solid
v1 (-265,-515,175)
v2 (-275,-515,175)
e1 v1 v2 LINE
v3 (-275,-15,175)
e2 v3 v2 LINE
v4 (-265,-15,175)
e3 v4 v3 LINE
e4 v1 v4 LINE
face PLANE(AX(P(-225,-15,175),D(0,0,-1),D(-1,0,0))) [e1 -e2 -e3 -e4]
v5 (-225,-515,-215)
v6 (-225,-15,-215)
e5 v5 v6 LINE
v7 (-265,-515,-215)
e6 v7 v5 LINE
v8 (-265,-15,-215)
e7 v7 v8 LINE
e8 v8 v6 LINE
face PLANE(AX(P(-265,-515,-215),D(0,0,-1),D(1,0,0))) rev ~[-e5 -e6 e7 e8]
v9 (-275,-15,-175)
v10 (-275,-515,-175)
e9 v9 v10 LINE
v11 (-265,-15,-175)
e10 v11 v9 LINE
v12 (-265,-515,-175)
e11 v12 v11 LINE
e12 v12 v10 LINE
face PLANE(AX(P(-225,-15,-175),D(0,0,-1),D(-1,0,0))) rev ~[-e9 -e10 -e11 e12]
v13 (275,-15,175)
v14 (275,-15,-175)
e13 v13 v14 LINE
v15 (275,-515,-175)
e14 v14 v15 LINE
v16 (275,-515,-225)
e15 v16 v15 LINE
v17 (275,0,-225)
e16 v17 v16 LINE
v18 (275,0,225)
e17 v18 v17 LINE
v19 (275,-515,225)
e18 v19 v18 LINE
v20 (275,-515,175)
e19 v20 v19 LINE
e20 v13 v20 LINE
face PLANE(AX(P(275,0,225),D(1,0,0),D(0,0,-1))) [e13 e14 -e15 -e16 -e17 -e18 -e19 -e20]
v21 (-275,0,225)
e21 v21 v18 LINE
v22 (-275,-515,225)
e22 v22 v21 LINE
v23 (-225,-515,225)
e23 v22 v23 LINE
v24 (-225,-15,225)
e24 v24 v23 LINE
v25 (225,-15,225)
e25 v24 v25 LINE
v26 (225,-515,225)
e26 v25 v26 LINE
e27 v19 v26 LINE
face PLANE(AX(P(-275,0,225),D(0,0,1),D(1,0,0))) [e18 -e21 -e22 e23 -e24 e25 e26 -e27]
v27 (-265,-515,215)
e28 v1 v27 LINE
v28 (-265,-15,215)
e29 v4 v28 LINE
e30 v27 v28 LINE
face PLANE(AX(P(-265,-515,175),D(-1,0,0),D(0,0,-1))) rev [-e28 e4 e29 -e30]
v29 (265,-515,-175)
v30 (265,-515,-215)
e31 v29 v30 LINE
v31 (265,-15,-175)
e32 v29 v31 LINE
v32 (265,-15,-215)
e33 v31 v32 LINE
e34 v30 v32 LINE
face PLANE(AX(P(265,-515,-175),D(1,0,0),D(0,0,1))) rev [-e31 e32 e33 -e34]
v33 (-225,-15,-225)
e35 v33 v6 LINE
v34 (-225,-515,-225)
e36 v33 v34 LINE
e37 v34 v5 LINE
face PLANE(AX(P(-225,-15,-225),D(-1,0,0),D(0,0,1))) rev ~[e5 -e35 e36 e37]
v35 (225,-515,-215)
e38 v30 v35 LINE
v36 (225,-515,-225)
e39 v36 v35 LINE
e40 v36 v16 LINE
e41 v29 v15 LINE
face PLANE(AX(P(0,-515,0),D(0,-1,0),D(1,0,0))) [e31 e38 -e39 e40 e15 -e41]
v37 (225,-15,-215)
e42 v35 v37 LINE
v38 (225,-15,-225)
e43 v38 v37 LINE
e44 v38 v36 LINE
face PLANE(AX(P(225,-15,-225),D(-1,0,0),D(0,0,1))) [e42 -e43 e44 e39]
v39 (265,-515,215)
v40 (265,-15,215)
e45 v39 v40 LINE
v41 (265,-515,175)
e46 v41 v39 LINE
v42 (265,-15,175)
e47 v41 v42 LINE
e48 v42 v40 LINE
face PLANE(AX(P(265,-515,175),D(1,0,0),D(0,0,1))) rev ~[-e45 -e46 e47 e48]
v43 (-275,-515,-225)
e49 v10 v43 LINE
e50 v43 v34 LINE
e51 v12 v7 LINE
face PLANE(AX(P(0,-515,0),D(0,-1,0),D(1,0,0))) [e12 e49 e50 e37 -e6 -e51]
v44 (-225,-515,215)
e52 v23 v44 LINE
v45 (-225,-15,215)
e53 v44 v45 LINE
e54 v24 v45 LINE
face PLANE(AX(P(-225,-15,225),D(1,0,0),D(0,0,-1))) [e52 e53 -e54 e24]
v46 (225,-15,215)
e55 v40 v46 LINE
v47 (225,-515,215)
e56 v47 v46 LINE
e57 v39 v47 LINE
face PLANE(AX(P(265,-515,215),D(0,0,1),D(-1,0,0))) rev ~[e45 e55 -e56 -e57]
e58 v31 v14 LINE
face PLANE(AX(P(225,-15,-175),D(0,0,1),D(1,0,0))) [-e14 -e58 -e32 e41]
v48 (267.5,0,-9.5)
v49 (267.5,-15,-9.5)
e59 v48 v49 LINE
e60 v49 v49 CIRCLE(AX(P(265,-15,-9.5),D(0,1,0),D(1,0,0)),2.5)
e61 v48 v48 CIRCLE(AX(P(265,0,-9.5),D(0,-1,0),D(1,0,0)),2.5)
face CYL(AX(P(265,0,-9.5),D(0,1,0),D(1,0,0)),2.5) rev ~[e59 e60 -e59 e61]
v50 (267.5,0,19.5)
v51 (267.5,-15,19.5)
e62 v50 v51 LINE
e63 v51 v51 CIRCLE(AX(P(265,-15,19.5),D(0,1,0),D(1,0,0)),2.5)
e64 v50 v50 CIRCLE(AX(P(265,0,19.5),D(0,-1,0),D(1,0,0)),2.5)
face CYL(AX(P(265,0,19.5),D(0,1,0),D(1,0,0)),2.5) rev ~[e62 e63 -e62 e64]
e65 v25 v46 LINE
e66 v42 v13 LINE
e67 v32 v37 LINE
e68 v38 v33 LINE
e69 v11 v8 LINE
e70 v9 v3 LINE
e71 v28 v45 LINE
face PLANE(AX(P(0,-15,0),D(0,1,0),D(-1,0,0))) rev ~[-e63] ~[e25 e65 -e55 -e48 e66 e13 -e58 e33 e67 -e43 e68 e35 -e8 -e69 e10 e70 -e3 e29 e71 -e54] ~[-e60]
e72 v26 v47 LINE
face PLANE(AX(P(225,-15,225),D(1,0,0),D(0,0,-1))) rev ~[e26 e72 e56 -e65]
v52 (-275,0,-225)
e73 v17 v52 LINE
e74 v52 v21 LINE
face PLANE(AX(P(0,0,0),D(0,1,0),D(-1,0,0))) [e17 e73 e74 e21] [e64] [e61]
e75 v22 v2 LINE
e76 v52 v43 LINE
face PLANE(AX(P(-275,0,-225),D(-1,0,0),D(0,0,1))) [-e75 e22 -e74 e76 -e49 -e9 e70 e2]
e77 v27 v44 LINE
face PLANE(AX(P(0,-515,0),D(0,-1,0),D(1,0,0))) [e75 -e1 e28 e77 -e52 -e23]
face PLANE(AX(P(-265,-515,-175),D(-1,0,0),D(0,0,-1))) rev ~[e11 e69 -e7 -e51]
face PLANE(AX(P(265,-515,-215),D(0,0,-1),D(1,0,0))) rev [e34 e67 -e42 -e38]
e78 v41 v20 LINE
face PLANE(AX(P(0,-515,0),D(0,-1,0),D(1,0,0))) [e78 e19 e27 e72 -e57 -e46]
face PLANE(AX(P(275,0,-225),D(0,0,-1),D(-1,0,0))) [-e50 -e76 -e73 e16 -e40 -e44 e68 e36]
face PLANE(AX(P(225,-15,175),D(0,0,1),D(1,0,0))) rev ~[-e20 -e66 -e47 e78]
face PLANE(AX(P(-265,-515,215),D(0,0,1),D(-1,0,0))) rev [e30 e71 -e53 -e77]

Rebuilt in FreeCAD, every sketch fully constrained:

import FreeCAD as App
import Part
import Sketcher

V = App.Vector
Q = App.Units.Quantity


def add_polygon(sketch, points):
    """Adds a closed chain of lines whose ends are joined by coincident constraints."""
    first, n = sketch.GeometryCount, len(points)
    for a, b in zip(points, points[1:] + points[:1]):
        sketch.addGeometry(Part.LineSegment(App.Vector(*a, 0), App.Vector(*b, 0)), False)
    for i in range(n):
        sketch.addConstraint(Sketcher.Constraint("Coincident", first + i, 2, first + (i + 1) % n, 1))

doc = App.newDocument("Part")
body = doc.addObject("PartDesign::Body", "Body")

# Sketch on XZ plane
sketch1 = body.newObject("Sketcher::SketchObject", "Sketch")
sketch1.AttachmentSupport = (doc.getObject("XZ_Plane"), [""])
sketch1.MapMode = "FlatFace"
add_polygon(sketch1, [(-275, -225), (-275, 225), (275, 225), (275, -225)])  # lines 0-3
sketch1.addConstraint(Sketcher.Constraint("Vertical", 0))
sketch1.addConstraint(Sketcher.Constraint("Horizontal", 1))
sketch1.addConstraint(Sketcher.Constraint("Vertical", 2))
sketch1.addConstraint(Sketcher.Constraint("Horizontal", 3))
sketch1.addConstraint(Sketcher.Constraint("Symmetric", 0, 2, 2, 2, -1, 1))
sketch1.addConstraint(Sketcher.Constraint("DistanceX", 1, 1, 1, 2, Q("550 mm")))
sketch1.addConstraint(Sketcher.Constraint("DistanceY", 0, 1, 0, 2, Q("450 mm")))
pad1 = body.newObject("PartDesign::Pad", "Pad")
pad1.Profile = sketch1
pad1.Length = 15

# Sketch on XZ plane
sketch2 = body.newObject("Sketcher::SketchObject", "Sketch001")
sketch2.AttachmentSupport = (doc.getObject("XZ_Plane"), [""])
sketch2.MapMode = "FlatFace"
sketch2.AttachmentOffset = App.Placement(V(0, 0, 15), App.Rotation())
add_polygon(sketch2, [(225, -225), (275, -225), (275, -175), (225, -175)])  # lines 0-3
add_polygon(sketch2, [(-275, 225), (-275, 175), (-225, 175), (-225, 225)])  # lines 4-7
add_polygon(sketch2, [(-275, -225), (-225, -225), (-225, -175), (-275, -175)])  # lines 8-11
add_polygon(sketch2, [(225, 175), (275, 175), (275, 225), (225, 225)])  # lines 12-15
sketch2.addConstraint(Sketcher.Constraint("Horizontal", 0))
sketch2.addConstraint(Sketcher.Constraint("Vertical", 1))
sketch2.addConstraint(Sketcher.Constraint("Horizontal", 2))
sketch2.addConstraint(Sketcher.Constraint("Vertical", 3))
sketch2.addConstraint(Sketcher.Constraint("Vertical", 4))
sketch2.addConstraint(Sketcher.Constraint("Horizontal", 5))
sketch2.addConstraint(Sketcher.Constraint("Vertical", 6))
sketch2.addConstraint(Sketcher.Constraint("Horizontal", 7))
sketch2.addConstraint(Sketcher.Constraint("Horizontal", 8))
sketch2.addConstraint(Sketcher.Constraint("Vertical", 9))
sketch2.addConstraint(Sketcher.Constraint("Horizontal", 10))
sketch2.addConstraint(Sketcher.Constraint("Vertical", 11))
sketch2.addConstraint(Sketcher.Constraint("Horizontal", 12))
sketch2.addConstraint(Sketcher.Constraint("Vertical", 13))
sketch2.addConstraint(Sketcher.Constraint("Horizontal", 14))
sketch2.addConstraint(Sketcher.Constraint("Vertical", 15))
sketch2.addConstraint(Sketcher.Constraint("Symmetric", 1, 2, 4, 2, -1, 1))
sketch2.addConstraint(Sketcher.Constraint("Symmetric", 3, 2, 6, 2, -1, 1))
sketch2.addConstraint(Sketcher.Constraint("Symmetric", 10, 2, 12, 2, -1, 1))
sketch2.addConstraint(Sketcher.Constraint("Symmetric", 8, 2, 14, 2, -1, 1))
sketch2.addConstraint(Sketcher.Constraint("Symmetric", 3, 2, 8, 2, -2))
sketch2.addConstraint(Sketcher.Constraint("Symmetric", 1, 2, 10, 2, -2))
sketch2.addConstraint(Sketcher.Constraint("Equal", 14, 1))
sketch2.addConstraint(Sketcher.Constraint("DistanceX", 0, 1, 0, 2, Q("50 mm")))
sketch2.addConstraint(Sketcher.Constraint("DistanceX", -1, 1, 0, 2, Q("275 mm")))
sketch2.addConstraint(Sketcher.Constraint("DistanceY", 0, 2, -1, 1, Q("225 mm")))
pad2 = body.newObject("PartDesign::Pad", "Pad001")
pad2.Profile = sketch2
pad2.Length = 500

# Sketch on XZ plane
sketch3 = body.newObject("Sketcher::SketchObject", "Sketch002")
sketch3.AttachmentSupport = (doc.getObject("XZ_Plane"), [""])
sketch3.MapMode = "FlatFace"
sketch3.AttachmentOffset = App.Placement(V(0, 0, 515), App.Rotation())
add_polygon(sketch3, [(225, 215), (225, 175), (265, 175), (265, 215)])  # lines 0-3
sketch3.addConstraint(Sketcher.Constraint("Vertical", 0))
sketch3.addConstraint(Sketcher.Constraint("Horizontal", 1))
sketch3.addConstraint(Sketcher.Constraint("Vertical", 2))
sketch3.addConstraint(Sketcher.Constraint("Horizontal", 3))
sketch3.addConstraint(Sketcher.Constraint("Equal", 3, 0))
sketch3.addConstraint(Sketcher.Constraint("DistanceX", 1, 1, 1, 2, Q("40 mm")))
sketch3.addConstraint(Sketcher.Constraint("DistanceX", -1, 1, 0, 2, Q("225 mm")))
sketch3.addConstraint(Sketcher.Constraint("DistanceY", -1, 1, 0, 2, Q("175 mm")))
pocket1 = body.newObject("PartDesign::Pocket", "Pocket")
pocket1.Profile = sketch3
pocket1.Length = 500
doc.recompute()

mirrored = body.newObject("PartDesign::Mirrored", "Mirrored")
mirrored.Originals = [pocket1]
mirrored.MirrorPlane = (doc.getObject("YZ_Plane"), [""])
body.Tip = mirrored
doc.recompute()

mirrored2 = body.newObject("PartDesign::Mirrored", "Mirrored001")
mirrored2.Originals = [pocket1]
mirrored2.MirrorPlane = (doc.getObject("XY_Plane"), [""])
body.Tip = mirrored2

# Sketch on XZ plane
sketch4 = body.newObject("Sketcher::SketchObject", "Sketch003")
sketch4.AttachmentSupport = (doc.getObject("XZ_Plane"), [""])
sketch4.MapMode = "FlatFace"
sketch4.AttachmentOffset = App.Placement(V(0, 0, 515), App.Rotation())
add_polygon(sketch4, [(-225, -175), (-265, -175), (-265, -215), (-225, -215)])  # lines 0-3
sketch4.addConstraint(Sketcher.Constraint("Horizontal", 0))
sketch4.addConstraint(Sketcher.Constraint("Vertical", 1))
sketch4.addConstraint(Sketcher.Constraint("Horizontal", 2))
sketch4.addConstraint(Sketcher.Constraint("Vertical", 3))
sketch4.addConstraint(Sketcher.Constraint("Equal", 2, 1))
sketch4.addConstraint(Sketcher.Constraint("DistanceX", 0, 2, 0, 1, Q("40 mm")))
sketch4.addConstraint(Sketcher.Constraint("DistanceX", 0, 2, -1, 1, Q("265 mm")))
sketch4.addConstraint(Sketcher.Constraint("DistanceY", 0, 2, -1, 1, Q("175 mm")))
pocket2 = body.newObject("PartDesign::Pocket", "Pocket001")
pocket2.Profile = sketch4
pocket2.Length = 500

# Sketch on XZ plane
sketch5 = body.newObject("Sketcher::SketchObject", "Sketch004")
sketch5.AttachmentSupport = (doc.getObject("XZ_Plane"), [""])
sketch5.MapMode = "FlatFace"
sketch5.addGeometry(Part.Circle(V(265, 19.5, 0), V(0, 0, 1), 2.5), False)
sketch5.addGeometry(Part.Circle(V(265, -9.5, 0), V(0, 0, 1), 2.5), False)
sketch5.addConstraint(Sketcher.Constraint("Equal", 0, 1))
sketch5.addConstraint(Sketcher.Constraint("Vertical", 0, 3, 1, 3))
sketch5.addConstraint(Sketcher.Constraint("Diameter", 0, Q("5 mm")))
sketch5.addConstraint(Sketcher.Constraint("DistanceY", 1, 3, 0, 3, Q("29 mm")))
sketch5.addConstraint(Sketcher.Constraint("DistanceY", -1, 1, 0, 3, Q("19.5 mm")))
sketch5.addConstraint(Sketcher.Constraint("DistanceX", -1, 1, 0, 3, Q("265 mm")))
pocket3 = body.newObject("PartDesign::Pocket", "Pocket002")
pocket3.Profile = sketch5
pocket3.Type = "ThroughAll"
pocket3.Reversed = True

doc.recompute()
